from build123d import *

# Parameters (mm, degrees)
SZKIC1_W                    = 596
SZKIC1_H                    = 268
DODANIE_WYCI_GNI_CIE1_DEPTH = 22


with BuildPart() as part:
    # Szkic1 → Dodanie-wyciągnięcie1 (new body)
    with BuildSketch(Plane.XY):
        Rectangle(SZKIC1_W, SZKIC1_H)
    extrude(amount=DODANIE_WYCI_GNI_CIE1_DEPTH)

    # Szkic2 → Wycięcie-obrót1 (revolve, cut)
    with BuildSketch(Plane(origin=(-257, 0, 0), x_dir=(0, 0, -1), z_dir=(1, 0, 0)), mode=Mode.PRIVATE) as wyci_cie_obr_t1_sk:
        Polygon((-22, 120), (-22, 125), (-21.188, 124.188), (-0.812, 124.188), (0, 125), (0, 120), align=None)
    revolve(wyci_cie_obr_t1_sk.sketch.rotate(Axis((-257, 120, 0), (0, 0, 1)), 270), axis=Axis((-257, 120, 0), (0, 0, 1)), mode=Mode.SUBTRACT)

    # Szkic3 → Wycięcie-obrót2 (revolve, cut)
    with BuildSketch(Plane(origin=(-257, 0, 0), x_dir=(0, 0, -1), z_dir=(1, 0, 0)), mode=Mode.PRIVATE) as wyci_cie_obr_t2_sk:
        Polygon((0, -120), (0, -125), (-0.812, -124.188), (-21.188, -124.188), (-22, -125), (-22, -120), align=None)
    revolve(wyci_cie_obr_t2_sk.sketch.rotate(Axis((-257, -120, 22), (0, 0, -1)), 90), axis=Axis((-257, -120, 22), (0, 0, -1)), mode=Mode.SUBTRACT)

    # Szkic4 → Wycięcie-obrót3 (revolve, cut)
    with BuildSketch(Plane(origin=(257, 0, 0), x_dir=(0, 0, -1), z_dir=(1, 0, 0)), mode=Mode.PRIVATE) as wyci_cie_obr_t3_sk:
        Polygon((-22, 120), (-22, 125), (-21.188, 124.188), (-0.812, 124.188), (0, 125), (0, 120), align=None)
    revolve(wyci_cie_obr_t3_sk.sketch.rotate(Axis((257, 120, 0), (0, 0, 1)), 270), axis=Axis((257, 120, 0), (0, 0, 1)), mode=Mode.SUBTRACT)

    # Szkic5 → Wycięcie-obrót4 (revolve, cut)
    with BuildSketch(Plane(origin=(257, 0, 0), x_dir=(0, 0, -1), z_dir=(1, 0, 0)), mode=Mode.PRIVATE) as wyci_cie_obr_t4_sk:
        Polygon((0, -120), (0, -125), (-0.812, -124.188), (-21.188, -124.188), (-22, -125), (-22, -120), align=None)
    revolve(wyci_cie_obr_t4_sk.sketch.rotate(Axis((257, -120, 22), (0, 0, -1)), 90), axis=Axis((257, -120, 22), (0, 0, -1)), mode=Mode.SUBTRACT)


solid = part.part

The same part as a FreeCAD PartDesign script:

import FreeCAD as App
import Part
import Sketcher

doc = App.newDocument("Part")
params = doc.addObject("Spreadsheet::Sheet", "Params")
for row, (alias, value) in enumerate([
    ("sketch1_width", "596 mm"),
    ("sketch1_height", "268 mm"),
    ("pad1_length", "22 mm"),
    ("sketch2_width", "5 mm"),
    ("sketch2_height", "22 mm"),
    ("groove_angle", "360 deg"),
    ("sketch3_width", "5 mm"),
    ("sketch3_height", "22 mm"),
    ("groove2_angle", "360 deg"),
    ("sketch4_width", "5 mm"),
    ("sketch4_height", "22 mm"),
    ("groove3_angle", "360 deg"),
    ("sketch5_width", "5 mm"),
    ("sketch5_height", "22 mm"),
    ("groove4_angle", "360 deg"),
], start=1):
    params.set(f"A{row}", alias)
    params.set(f"B{row}", "=" + value)
    params.setAlias(f"B{row}", alias)

body = doc.addObject("PartDesign::Body", "Body")

# Sketch on XY plane
sketch1 = doc.addObject("Sketcher::SketchObject", "Sketch")
body.addObject(sketch1)
sketch1.AttachmentSupport = (doc.XY_Plane, [""])
sketch1.MapMode = "FlatFace"
sketch1.addGeometry(Part.LineSegment(App.Vector(-298, 134, 0), App.Vector(-298, -134, 0)), False)
sketch1.addGeometry(Part.LineSegment(App.Vector(-298, -134, 0), App.Vector(298, -134, 0)), False)
sketch1.addGeometry(Part.LineSegment(App.Vector(298, -134, 0), App.Vector(298, 134, 0)), False)
sketch1.addGeometry(Part.LineSegment(App.Vector(298, 134, 0), App.Vector(-298, 134, 0)), False)
sketch1.addConstraint(Sketcher.Constraint("Coincident", 0, 2, 1, 1))
sketch1.addConstraint(Sketcher.Constraint("Coincident", 1, 2, 2, 1))
sketch1.addConstraint(Sketcher.Constraint("Coincident", 2, 2, 3, 1))
sketch1.addConstraint(Sketcher.Constraint("Coincident", 3, 2, 0, 1))
sketch1.addConstraint(Sketcher.Constraint("Vertical", 0))
sketch1.addConstraint(Sketcher.Constraint("Horizontal", 1))
sketch1.addConstraint(Sketcher.Constraint("Vertical", 2))
sketch1.addConstraint(Sketcher.Constraint("Horizontal", 3))
sketch1.addConstraint(Sketcher.Constraint("Symmetric", 0, 2, 2, 2, -1, 1))
sketch1.addConstraint(Sketcher.Constraint("DistanceX", 1, 1, 1, 2, 596.0))
sketch1.addConstraint(Sketcher.Constraint("DistanceY", 0, 2, 0, 1, 268.0))
sketch1.setExpression("Constraints[9]", "Params.sketch1_width")
sketch1.setExpression("Constraints[10]", "Params.sketch1_height")
pad1 = doc.addObject("PartDesign::Pad", "Pad")
body.addObject(pad1)
pad1.Profile = sketch1
pad1.setExpression("Length", "Params.pad1_length")

# Sketch on YZ plane
sketch2 = doc.addObject("Sketcher::SketchObject", "Sketch001")
body.addObject(sketch2)
sketch2.AttachmentSupport = (doc.YZ_Plane, [""])
sketch2.MapMode = "FlatFace"
sketch2.AttachmentOffset = App.Placement(App.Vector(0, 0, -257), App.Rotation())
sketch2.addGeometry(Part.LineSegment(App.Vector(125, 22, 0), App.Vector(120, 22, 0)), False)
sketch2.addGeometry(Part.LineSegment(App.Vector(120, 22, 0), App.Vector(120, 0, 0)), False)
sketch2.addGeometry(Part.LineSegment(App.Vector(120, 0, 0), App.Vector(125, 0, 0)), False)
sketch2.addGeometry(Part.LineSegment(App.Vector(125, 0, 0), App.Vector(124.2, 0.8, 0)), False)
sketch2.addGeometry(Part.LineSegment(App.Vector(124.2, 0.8, 0), App.Vector(124.2, 21.2, 0)), False)
sketch2.addGeometry(Part.LineSegment(App.Vector(124.2, 21.2, 0), App.Vector(125, 22, 0)), False)
sketch2.addGeometry(Part.LineSegment(App.Vector(120, 0, 0), App.Vector(120, 22, 0)), True)  # axis
sketch2.addConstraint(Sketcher.Constraint("Coincident", 0, 2, 1, 1))
sketch2.addConstraint(Sketcher.Constraint("Coincident", 1, 2, 2, 1))
sketch2.addConstraint(Sketcher.Constraint("Coincident", 2, 2, 3, 1))
sketch2.addConstraint(Sketcher.Constraint("Coincident", 3, 2, 4, 1))
sketch2.addConstraint(Sketcher.Constraint("Coincident", 4, 2, 5, 1))
sketch2.addConstraint(Sketcher.Constraint("Coincident", 5, 2, 0, 1))
sketch2.addConstraint(Sketcher.Constraint("Horizontal", 0))
sketch2.addConstraint(Sketcher.Constraint("Vertical", 1))
sketch2.addConstraint(Sketcher.Constraint("Horizontal", 2))
sketch2.addConstraint(Sketcher.Constraint("Vertical", 4))
sketch2.addConstraint(Sketcher.Constraint("Vertical", 6))
sketch2.addConstraint(Sketcher.Constraint("Coincident", 6, 1, 1, 2))
sketch2.addConstraint(Sketcher.Constraint("PointOnObject", 1, 2, -1))
sketch2.addConstraint(Sketcher.Constraint("Perpendicular", 3, 5))
sketch2.addConstraint(Sketcher.Constraint("Horizontal", 5, 2, 6, 2))
sketch2.addConstraint(Sketcher.Constraint("Vertical", 2, 2, 5, 2))
sketch2.addConstraint(Sketcher.Constraint("Equal", 3, 5))
sketch2.addConstraint(Sketcher.Constraint("DistanceX", 0, 2, 0, 1, 5.0))
sketch2.addConstraint(Sketcher.Constraint("DistanceY", 1, 2, 1, 1, 22.0))
sketch2.addConstraint(Sketcher.Constraint("DistanceX", -1, 1, 0, 2, 120.0))
sketch2.addConstraint(Sketcher.Constraint("DistanceY", 4, 1, 4, 2, 20.376))
sketch2.setExpression("Constraints[17]", "Params.sketch2_width")
sketch2.setExpression("Constraints[18]", "Params.sketch2_height")
groove = doc.addObject("PartDesign::Groove", "Groove")
body.addObject(groove)
groove.Profile = sketch2
groove.ReferenceAxis = (sketch2, ["Axis0"])
groove.setExpression("Angle", "Params.groove_angle")

# Sketch on YZ plane
sketch3 = doc.addObject("Sketcher::SketchObject", "Sketch002")
body.addObject(sketch3)
sketch3.AttachmentSupport = (doc.YZ_Plane, [""])
sketch3.MapMode = "FlatFace"
sketch3.AttachmentOffset = App.Placement(App.Vector(0, 0, -257), App.Rotation())
sketch3.addGeometry(Part.LineSegment(App.Vector(-125, 0, 0), App.Vector(-120, 0, 0)), False)
sketch3.addGeometry(Part.LineSegment(App.Vector(-120, 0, 0), App.Vector(-120, 22, 0)), False)
sketch3.addGeometry(Part.LineSegment(App.Vector(-120, 22, 0), App.Vector(-125, 22, 0)), False)
sketch3.addGeometry(Part.LineSegment(App.Vector(-125, 22, 0), App.Vector(-124.2, 21.2, 0)), False)
sketch3.addGeometry(Part.LineSegment(App.Vector(-124.2, 21.2, 0), App.Vector(-124.2, 0.8, 0)), False)
sketch3.addGeometry(Part.LineSegment(App.Vector(-124.2, 0.8, 0), App.Vector(-125, 0, 0)), False)
sketch3.addGeometry(Part.LineSegment(App.Vector(-120, 22, 0), App.Vector(-120, 0, 0)), True)  # axis
sketch3.addConstraint(Sketcher.Constraint("Coincident", 0, 2, 1, 1))
sketch3.addConstraint(Sketcher.Constraint("Coincident", 1, 2, 2, 1))
sketch3.addConstraint(Sketcher.Constraint("Coincident", 2, 2, 3, 1))
sketch3.addConstraint(Sketcher.Constraint("Coincident", 3, 2, 4, 1))
sketch3.addConstraint(Sketcher.Constraint("Coincident", 4, 2, 5, 1))
sketch3.addConstraint(Sketcher.Constraint("Coincident", 5, 2, 0, 1))
sketch3.addConstraint(Sketcher.Constraint("Horizontal", 0))
sketch3.addConstraint(Sketcher.Constraint("Vertical", 1))
sketch3.addConstraint(Sketcher.Constraint("Horizontal", 2))
sketch3.addConstraint(Sketcher.Constraint("Vertical", 4))
sketch3.addConstraint(Sketcher.Constraint("Vertical", 6))
sketch3.addConstraint(Sketcher.Constraint("Coincident", 6, 1, 1, 2))
sketch3.addConstraint(Sketcher.Constraint("PointOnObject", 0, 2, -1))
sketch3.addConstraint(Sketcher.Constraint("PointOnObject", 6, 2, -1))
sketch3.addConstraint(Sketcher.Constraint("Perpendicular", 3, 5))
sketch3.addConstraint(Sketcher.Constraint("Vertical", 2, 2, 5, 2))
sketch3.addConstraint(Sketcher.Constraint("Equal", 3, 5))
sketch3.addConstraint(Sketcher.Constraint("DistanceX", 0, 1, 0, 2, 5.0))
sketch3.addConstraint(Sketcher.Constraint("DistanceY", 1, 1, 1, 2, 22.0))
sketch3.addConstraint(Sketcher.Constraint("DistanceX", 0, 2, -1, 1, 120.0))
sketch3.addConstraint(Sketcher.Constraint("DistanceY", 4, 2, 4, 1, 20.376))
sketch3.setExpression("Constraints[17]", "Params.sketch3_width")
sketch3.setExpression("Constraints[18]", "Params.sketch3_height")
groove2 = doc.addObject("PartDesign::Groove", "Groove001")
body.addObject(groove2)
groove2.Profile = sketch3
groove2.ReferenceAxis = (sketch3, ["Axis0"])
groove2.setExpression("Angle", "Params.groove2_angle")

# Sketch on YZ plane
sketch4 = doc.addObject("Sketcher::SketchObject", "Sketch003")
body.addObject(sketch4)
sketch4.AttachmentSupport = (doc.YZ_Plane, [""])
sketch4.MapMode = "FlatFace"
sketch4.AttachmentOffset = App.Placement(App.Vector(0, 0, 257), App.Rotation())
sketch4.addGeometry(Part.LineSegment(App.Vector(125, 22, 0), App.Vector(120, 22, 0)), False)
sketch4.addGeometry(Part.LineSegment(App.Vector(120, 22, 0), App.Vector(120, 0, 0)), False)
sketch4.addGeometry(Part.LineSegment(App.Vector(120, 0, 0), App.Vector(125, 0, 0)), False)
sketch4.addGeometry(Part.LineSegment(App.Vector(125, 0, 0), App.Vector(124.2, 0.8, 0)), False)
sketch4.addGeometry(Part.LineSegment(App.Vector(124.2, 0.8, 0), App.Vector(124.2, 21.2, 0)), False)
sketch4.addGeometry(Part.LineSegment(App.Vector(124.2, 21.2, 0), App.Vector(125, 22, 0)), False)
sketch4.addGeometry(Part.LineSegment(App.Vector(120, 0, 0), App.Vector(120, 22, 0)), True)  # axis
sketch4.addConstraint(Sketcher.Constraint("Coincident", 0, 2, 1, 1))
sketch4.addConstraint(Sketcher.Constraint("Coincident", 1, 2, 2, 1))
sketch4.addConstraint(Sketcher.Constraint("Coincident", 2, 2, 3, 1))
sketch4.addConstraint(Sketcher.Constraint("Coincident", 3, 2, 4, 1))
sketch4.addConstraint(Sketcher.Constraint("Coincident", 4, 2, 5, 1))
sketch4.addConstraint(Sketcher.Constraint("Coincident", 5, 2, 0, 1))
sketch4.addConstraint(Sketcher.Constraint("Horizontal", 0))
sketch4.addConstraint(Sketcher.Constraint("Vertical", 1))
sketch4.addConstraint(Sketcher.Constraint("Horizontal", 2))
sketch4.addConstraint(Sketcher.Constraint("Vertical", 4))
sketch4.addConstraint(Sketcher.Constraint("Vertical", 6))
sketch4.addConstraint(Sketcher.Constraint("Coincident", 6, 1, 1, 2))
sketch4.addConstraint(Sketcher.Constraint("PointOnObject", 1, 2, -1))
sketch4.addConstraint(Sketcher.Constraint("Perpendicular", 3, 5))
sketch4.addConstraint(Sketcher.Constraint("Horizontal", 5, 2, 6, 2))
sketch4.addConstraint(Sketcher.Constraint("Vertical", 2, 2, 5, 2))
sketch4.addConstraint(Sketcher.Constraint("Equal", 3, 5))
sketch4.addConstraint(Sketcher.Constraint("DistanceX", 0, 2, 0, 1, 5.0))
sketch4.addConstraint(Sketcher.Constraint("DistanceY", 1, 2, 1, 1, 22.0))
sketch4.addConstraint(Sketcher.Constraint("DistanceX", -1, 1, 0, 2, 120.0))
sketch4.addConstraint(Sketcher.Constraint("DistanceY", 4, 1, 4, 2, 20.376))
sketch4.setExpression("Constraints[17]", "Params.sketch4_width")
sketch4.setExpression("Constraints[18]", "Params.sketch4_height")
groove3 = doc.addObject("PartDesign::Groove", "Groove002")
body.addObject(groove3)
groove3.Profile = sketch4
groove3.ReferenceAxis = (sketch4, ["Axis0"])
groove3.setExpression("Angle", "Params.groove3_angle")

# Sketch on YZ plane
sketch5 = doc.addObject("Sketcher::SketchObject", "Sketch004")
body.addObject(sketch5)
sketch5.AttachmentSupport = (doc.YZ_Plane, [""])
sketch5.MapMode = "FlatFace"
sketch5.AttachmentOffset = App.Placement(App.Vector(0, 0, 257), App.Rotation())
sketch5.addGeometry(Part.LineSegment(App.Vector(-125, 0, 0), App.Vector(-120, 0, 0)), False)
sketch5.addGeometry(Part.LineSegment(App.Vector(-120, 0, 0), App.Vector(-120, 22, 0)), False)
sketch5.addGeometry(Part.LineSegment(App.Vector(-120, 22, 0), App.Vector(-125, 22, 0)), False)
sketch5.addGeometry(Part.LineSegment(App.Vector(-125, 22, 0), App.Vector(-124.2, 21.2, 0)), False)
sketch5.addGeometry(Part.LineSegment(App.Vector(-124.2, 21.2, 0), App.Vector(-124.2, 0.8, 0)), False)
sketch5.addGeometry(Part.LineSegment(App.Vector(-124.2, 0.8, 0), App.Vector(-125, 0, 0)), False)
sketch5.addGeometry(Part.LineSegment(App.Vector(-120, 22, 0), App.Vector(-120, 0, 0)), True)  # axis
sketch5.addConstraint(Sketcher.Constraint("Coincident", 0, 2, 1, 1))
sketch5.addConstraint(Sketcher.Constraint("Coincident", 1, 2, 2, 1))
sketch5.addConstraint(Sketcher.Constraint("Coincident", 2, 2, 3, 1))
sketch5.addConstraint(Sketcher.Constraint("Coincident", 3, 2, 4, 1))
sketch5.addConstraint(Sketcher.Constraint("Coincident", 4, 2, 5, 1))
sketch5.addConstraint(Sketcher.Constraint("Coincident", 5, 2, 0, 1))
sketch5.addConstraint(Sketcher.Constraint("Horizontal", 0))
sketch5.addConstraint(Sketcher.Constraint("Vertical", 1))
sketch5.addConstraint(Sketcher.Constraint("Horizontal", 2))
sketch5.addConstraint(Sketcher.Constraint("Vertical", 4))
sketch5.addConstraint(Sketcher.Constraint("Vertical", 6))
sketch5.addConstraint(Sketcher.Constraint("Coincident", 6, 1, 1, 2))
sketch5.addConstraint(Sketcher.Constraint("PointOnObject", 0, 2, -1))
sketch5.addConstraint(Sketcher.Constraint("PointOnObject", 6, 2, -1))
sketch5.addConstraint(Sketcher.Constraint("Perpendicular", 3, 5))
sketch5.addConstraint(Sketcher.Constraint("Vertical", 2, 2, 5, 2))
sketch5.addConstraint(Sketcher.Constraint("Equal", 3, 5))
sketch5.addConstraint(Sketcher.Constraint("DistanceX", 0, 1, 0, 2, 5.0))
sketch5.addConstraint(Sketcher.Constraint("DistanceY", 1, 1, 1, 2, 22.0))
sketch5.addConstraint(Sketcher.Constraint("DistanceX", 0, 2, -1, 1, 120.0))
sketch5.addConstraint(Sketcher.Constraint("DistanceY", 4, 2, 4, 1, 20.376))
sketch5.setExpression("Constraints[17]", "Params.sketch5_width")
sketch5.setExpression("Constraints[18]", "Params.sketch5_height")
groove4 = doc.addObject("PartDesign::Groove", "Groove003")
body.addObject(groove4)
groove4.Profile = sketch5
groove4.ReferenceAxis = (sketch5, ["Axis0"])
groove4.setExpression("Angle", "Params.groove4_angle")

doc.recompute()
